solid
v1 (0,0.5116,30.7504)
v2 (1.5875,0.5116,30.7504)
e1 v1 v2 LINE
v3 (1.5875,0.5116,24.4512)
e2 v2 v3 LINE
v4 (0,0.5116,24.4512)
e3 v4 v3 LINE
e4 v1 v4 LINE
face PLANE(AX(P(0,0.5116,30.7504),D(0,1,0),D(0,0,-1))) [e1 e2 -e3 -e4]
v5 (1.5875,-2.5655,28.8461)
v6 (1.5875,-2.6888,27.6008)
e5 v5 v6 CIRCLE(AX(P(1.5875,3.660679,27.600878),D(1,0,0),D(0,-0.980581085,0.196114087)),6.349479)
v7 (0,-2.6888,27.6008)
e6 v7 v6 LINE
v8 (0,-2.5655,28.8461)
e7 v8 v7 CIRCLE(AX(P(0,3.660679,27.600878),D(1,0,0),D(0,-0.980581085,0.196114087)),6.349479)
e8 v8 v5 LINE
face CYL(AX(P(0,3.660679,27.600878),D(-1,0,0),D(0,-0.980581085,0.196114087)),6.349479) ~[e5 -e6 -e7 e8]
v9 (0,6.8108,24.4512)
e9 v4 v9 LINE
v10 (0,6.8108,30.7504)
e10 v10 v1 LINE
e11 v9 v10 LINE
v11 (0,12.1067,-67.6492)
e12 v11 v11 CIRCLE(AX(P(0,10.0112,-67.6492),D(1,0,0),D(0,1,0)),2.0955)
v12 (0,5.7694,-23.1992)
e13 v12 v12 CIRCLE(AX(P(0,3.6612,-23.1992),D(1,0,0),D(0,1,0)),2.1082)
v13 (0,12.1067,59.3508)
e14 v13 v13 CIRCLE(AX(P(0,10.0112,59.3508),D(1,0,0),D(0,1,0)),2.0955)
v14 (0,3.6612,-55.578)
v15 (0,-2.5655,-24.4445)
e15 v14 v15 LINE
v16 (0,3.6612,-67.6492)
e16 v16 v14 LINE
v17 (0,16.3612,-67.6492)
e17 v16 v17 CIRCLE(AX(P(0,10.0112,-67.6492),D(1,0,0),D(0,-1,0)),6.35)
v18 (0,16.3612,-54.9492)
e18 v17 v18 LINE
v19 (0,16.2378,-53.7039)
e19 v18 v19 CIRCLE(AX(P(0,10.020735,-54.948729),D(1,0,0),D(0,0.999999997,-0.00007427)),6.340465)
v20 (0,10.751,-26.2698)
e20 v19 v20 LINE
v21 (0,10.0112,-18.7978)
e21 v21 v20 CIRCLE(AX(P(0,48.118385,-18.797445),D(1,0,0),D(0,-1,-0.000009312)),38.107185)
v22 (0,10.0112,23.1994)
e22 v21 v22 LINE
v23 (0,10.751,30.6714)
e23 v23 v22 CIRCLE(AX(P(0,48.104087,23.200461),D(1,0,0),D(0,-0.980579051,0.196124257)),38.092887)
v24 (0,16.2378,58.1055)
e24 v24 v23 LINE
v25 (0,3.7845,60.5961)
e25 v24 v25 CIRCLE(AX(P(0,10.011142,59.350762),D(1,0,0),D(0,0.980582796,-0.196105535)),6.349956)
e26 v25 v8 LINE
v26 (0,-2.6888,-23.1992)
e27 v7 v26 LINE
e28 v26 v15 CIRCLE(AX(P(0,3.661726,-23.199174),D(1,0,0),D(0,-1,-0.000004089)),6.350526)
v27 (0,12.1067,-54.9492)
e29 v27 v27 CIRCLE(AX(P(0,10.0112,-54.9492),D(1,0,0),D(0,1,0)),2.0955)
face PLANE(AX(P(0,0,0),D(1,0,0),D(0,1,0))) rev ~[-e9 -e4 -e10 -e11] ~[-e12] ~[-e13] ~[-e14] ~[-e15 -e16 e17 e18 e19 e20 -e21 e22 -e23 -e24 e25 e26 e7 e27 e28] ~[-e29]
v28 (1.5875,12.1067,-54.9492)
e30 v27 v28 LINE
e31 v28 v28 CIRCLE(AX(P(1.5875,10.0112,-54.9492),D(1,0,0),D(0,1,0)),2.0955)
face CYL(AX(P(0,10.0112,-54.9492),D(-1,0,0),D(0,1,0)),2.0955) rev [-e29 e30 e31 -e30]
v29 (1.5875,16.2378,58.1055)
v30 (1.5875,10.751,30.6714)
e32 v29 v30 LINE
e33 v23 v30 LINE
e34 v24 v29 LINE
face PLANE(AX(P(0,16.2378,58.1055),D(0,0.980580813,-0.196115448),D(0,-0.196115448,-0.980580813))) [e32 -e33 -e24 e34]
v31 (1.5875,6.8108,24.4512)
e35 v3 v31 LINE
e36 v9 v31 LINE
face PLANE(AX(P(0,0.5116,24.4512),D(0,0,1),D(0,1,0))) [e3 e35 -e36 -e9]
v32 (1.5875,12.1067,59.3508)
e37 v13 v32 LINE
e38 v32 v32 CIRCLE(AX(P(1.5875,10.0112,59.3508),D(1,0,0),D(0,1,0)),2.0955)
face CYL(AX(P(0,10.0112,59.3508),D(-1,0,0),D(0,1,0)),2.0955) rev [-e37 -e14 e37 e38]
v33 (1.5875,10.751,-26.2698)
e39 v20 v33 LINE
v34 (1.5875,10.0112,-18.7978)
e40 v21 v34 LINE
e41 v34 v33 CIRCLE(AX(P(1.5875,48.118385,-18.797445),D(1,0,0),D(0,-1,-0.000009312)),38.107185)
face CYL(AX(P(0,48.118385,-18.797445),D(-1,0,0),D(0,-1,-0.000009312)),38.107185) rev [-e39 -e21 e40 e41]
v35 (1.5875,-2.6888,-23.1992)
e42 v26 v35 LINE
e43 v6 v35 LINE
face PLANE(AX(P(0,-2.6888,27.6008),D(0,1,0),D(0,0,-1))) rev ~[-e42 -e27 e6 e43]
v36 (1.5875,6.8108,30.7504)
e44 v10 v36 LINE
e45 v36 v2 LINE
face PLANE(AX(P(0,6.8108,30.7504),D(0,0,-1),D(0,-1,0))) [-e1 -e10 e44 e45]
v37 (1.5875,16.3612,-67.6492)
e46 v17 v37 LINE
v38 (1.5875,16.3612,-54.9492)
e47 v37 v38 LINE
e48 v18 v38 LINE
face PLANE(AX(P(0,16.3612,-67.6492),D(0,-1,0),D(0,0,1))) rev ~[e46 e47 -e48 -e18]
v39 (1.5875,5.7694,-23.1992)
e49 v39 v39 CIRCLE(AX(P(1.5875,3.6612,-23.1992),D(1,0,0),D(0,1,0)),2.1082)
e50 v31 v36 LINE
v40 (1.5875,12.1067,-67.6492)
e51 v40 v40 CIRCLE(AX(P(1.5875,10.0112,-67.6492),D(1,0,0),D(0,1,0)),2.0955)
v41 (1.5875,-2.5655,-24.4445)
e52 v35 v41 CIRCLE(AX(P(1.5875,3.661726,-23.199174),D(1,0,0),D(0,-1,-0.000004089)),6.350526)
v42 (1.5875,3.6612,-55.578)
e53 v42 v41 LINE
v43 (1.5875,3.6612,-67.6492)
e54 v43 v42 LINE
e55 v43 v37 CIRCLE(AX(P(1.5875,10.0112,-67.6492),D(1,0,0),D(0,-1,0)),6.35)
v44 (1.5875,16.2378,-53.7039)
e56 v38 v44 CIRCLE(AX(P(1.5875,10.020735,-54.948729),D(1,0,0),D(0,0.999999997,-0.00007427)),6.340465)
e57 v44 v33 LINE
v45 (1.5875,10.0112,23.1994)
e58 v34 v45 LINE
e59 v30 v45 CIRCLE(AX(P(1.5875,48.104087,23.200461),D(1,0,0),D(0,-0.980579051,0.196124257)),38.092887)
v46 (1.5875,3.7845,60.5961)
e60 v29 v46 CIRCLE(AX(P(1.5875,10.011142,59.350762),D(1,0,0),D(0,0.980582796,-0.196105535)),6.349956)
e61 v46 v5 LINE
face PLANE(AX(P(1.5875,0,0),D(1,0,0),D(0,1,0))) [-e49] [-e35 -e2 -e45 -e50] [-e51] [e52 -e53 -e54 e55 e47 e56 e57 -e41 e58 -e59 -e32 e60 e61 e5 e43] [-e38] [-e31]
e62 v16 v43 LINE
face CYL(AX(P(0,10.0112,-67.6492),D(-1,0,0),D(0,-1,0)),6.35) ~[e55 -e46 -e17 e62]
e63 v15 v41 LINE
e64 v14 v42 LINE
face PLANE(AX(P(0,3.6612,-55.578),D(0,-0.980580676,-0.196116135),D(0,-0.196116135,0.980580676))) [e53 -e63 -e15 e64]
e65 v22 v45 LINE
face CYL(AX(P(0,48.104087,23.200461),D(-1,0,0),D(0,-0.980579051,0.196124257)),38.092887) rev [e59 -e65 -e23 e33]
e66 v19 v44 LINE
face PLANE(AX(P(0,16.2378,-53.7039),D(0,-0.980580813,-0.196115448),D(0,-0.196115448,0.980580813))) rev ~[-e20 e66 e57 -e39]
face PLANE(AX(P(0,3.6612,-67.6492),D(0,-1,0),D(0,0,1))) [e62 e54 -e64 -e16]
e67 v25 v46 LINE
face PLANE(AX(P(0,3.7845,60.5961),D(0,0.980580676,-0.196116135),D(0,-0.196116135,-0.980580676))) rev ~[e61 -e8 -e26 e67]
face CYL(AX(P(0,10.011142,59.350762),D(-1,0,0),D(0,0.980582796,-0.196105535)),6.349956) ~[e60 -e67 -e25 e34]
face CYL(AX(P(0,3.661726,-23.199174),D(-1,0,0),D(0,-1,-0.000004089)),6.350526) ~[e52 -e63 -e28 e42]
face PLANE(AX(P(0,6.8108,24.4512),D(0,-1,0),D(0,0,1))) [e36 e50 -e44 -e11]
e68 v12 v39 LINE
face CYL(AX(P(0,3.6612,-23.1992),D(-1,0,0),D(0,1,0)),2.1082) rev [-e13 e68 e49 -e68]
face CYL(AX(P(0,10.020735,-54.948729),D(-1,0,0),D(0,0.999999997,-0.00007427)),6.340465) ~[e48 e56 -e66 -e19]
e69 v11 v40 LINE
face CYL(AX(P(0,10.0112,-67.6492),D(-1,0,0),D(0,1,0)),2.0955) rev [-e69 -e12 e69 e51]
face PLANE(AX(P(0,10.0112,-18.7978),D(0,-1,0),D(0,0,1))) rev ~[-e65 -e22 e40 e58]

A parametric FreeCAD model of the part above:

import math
import FreeCAD as App
import Part
import Sketcher
from FreeCAD import Vector
Q = App.Units.Quantity


def add_polygon(sketch, points):
    """Adds a closed chain of lines whose ends are joined by coincident constraints."""
    first, n = sketch.GeometryCount, len(points)
    for a, b in zip(points, points[1:] + points[:1]):
        sketch.addGeometry(Part.LineSegment(App.Vector(*a, 0), App.Vector(*b, 0)), False)
    for i in range(n):
        sketch.addConstraint(Sketcher.Constraint("Coincident", first + i, 2, first + (i + 1) % n, 1))

doc = App.newDocument("Part")
body = doc.addObject("PartDesign::Body", "Body")

# Sketch on YZ plane
sketch1 = body.newObject("Sketcher::SketchObject", "Sketch")
sketch1.AttachmentSupport = (doc.getObject("YZ_Plane"), [""])
sketch1.MapMode = "FlatFace"
sketch1.addGeometry(Part.LineSegment(Vector(3.7845, 60.5961, 0), Vector(-2.5655, 28.8461, 0)), False)  # 0
sketch1.addGeometry(Part.ArcOfCircle(Part.Circle(Vector(3.6612, 27.6008, 0), Vector(0, 0, 1), 6.350005), math.radians(168.690421), math.radians(180)), False)  # 1
sketch1.addGeometry(Part.LineSegment(Vector(-2.6888, 27.6008, 0), Vector(-2.6888, -23.1992, 0)), False)  # 2
sketch1.addGeometry(Part.ArcOfCircle(Part.Circle(Vector(3.6612, -23.1992, 0), Vector(0, 0, 1), 6.35), math.radians(180), math.radians(191.309579)), False)  # 3
sketch1.addGeometry(Part.LineSegment(Vector(-2.5655, -24.4445, 0), Vector(3.6612, -55.578, 0)), False)  # 4
sketch1.addGeometry(Part.LineSegment(Vector(3.6612, -55.578, 0), Vector(3.6612, -67.6492, 0)), False)  # 5
sketch1.addGeometry(Part.ArcOfCircle(Part.Circle(Vector(10.0112, -67.6492, 0), Vector(0, 0, 1), 6.35), math.radians(180), math.radians(360)), False)  # 6
sketch1.addGeometry(Part.LineSegment(Vector(16.3612, -67.6492, 0), Vector(16.3612, -54.9492, 0)), False)  # 7
sketch1.addGeometry(Part.ArcOfCircle(Part.Circle(Vector(10.020735, -54.948729, 0), Vector(0, 0, 1), 6.340465), math.radians(-0.004255), math.radians(11.32248)), False)  # 8
sketch1.addGeometry(Part.LineSegment(Vector(16.2378, -53.7039, 0), Vector(10.751, -26.2698, 0)), False)  # 9
sketch1.addGeometry(Part.ArcOfCircle(Part.Circle(Vector(48.118385, -18.797445, 0), Vector(0, 0, 1), 38.107185), math.radians(-179.999466), math.radians(-168.691722)), False)  # 10
sketch1.addGeometry(Part.LineSegment(Vector(10.0112, -18.7978, 0), Vector(10.0112, 23.1994, 0)), False)  # 11
sketch1.addGeometry(Part.ArcOfCircle(Part.Circle(Vector(48.104087, 23.200461, 0), Vector(0, 0, 1), 38.092887), math.radians(168.689593), math.radians(180.001595)), False)  # 12
sketch1.addGeometry(Part.LineSegment(Vector(10.751, 30.6714, 0), Vector(16.2378, 58.1055, 0)), False)  # 13
sketch1.addGeometry(Part.ArcOfCircle(Part.Circle(Vector(10.0112, 59.3508, 0), Vector(0, 0, 1), 6.349907), math.radians(-11.309756), math.radians(168.690421)), False)  # 14
sketch1.addGeometry(Part.Circle(Vector(3.6612, -23.1992, 0), Vector(0, 0, 1), 2.1082), False)  # 15
sketch1.addGeometry(Part.Circle(Vector(10.0112, -67.6492, 0), Vector(0, 0, 1), 2.0955), False)  # 16
sketch1.addGeometry(Part.Circle(Vector(10.0112, -54.9492, 0), Vector(0, 0, 1), 2.0955), False)  # 17
add_polygon(sketch1, [(0.5116, 30.7504), (6.8108, 30.7504), (6.8108, 24.4512), (0.5116, 24.4512)])  # lines 18-21
sketch1.addGeometry(Part.Circle(Vector(10.0112, 59.3508, 0), Vector(0, 0, 1), 2.0955), False)  # 22
sketch1.addConstraint([
    Sketcher.Constraint("Coincident", 0, 2, 1, 1),
    Sketcher.Constraint("Coincident", 1, 2, 2, 1),
    Sketcher.Constraint("Coincident", 2, 2, 3, 1),
    Sketcher.Constraint("Coincident", 3, 2, 4, 1),
    Sketcher.Constraint("Coincident", 4, 2, 5, 1),
    Sketcher.Constraint("Coincident", 5, 2, 6, 1),
    Sketcher.Constraint("Coincident", 6, 2, 7, 1),
    Sketcher.Constraint("Coincident", 7, 2, 8, 1),
    Sketcher.Constraint("Coincident", 8, 2, 9, 1),
    Sketcher.Constraint("Coincident", 9, 2, 10, 2),
    Sketcher.Constraint("Coincident", 10, 1, 11, 1),
    Sketcher.Constraint("Coincident", 11, 2, 12, 2),
    Sketcher.Constraint("Coincident", 12, 1, 13, 1),
    Sketcher.Constraint("Coincident", 13, 2, 14, 1),
    Sketcher.Constraint("Coincident", 14, 2, 0, 1),
    Sketcher.Constraint("Vertical", 2),
    Sketcher.Constraint("Vertical", 5),
    Sketcher.Constraint("Vertical", 7),
    Sketcher.Constraint("Vertical", 11),
    Sketcher.Constraint("Horizontal", 18),
    Sketcher.Constraint("Vertical", 19),
    Sketcher.Constraint("Horizontal", 20),
    Sketcher.Constraint("Vertical", 21),
    Sketcher.Constraint("Coincident", 15, 3, 3, 3),
    Sketcher.Constraint("Coincident", 16, 3, 6, 3),
    Sketcher.Constraint("Coincident", 22, 3, 14, 3),
    Sketcher.Constraint("Radius", 1, Q("0.25 in")),
    Sketcher.Constraint("Radius", 3, Q("0.25 in")),
    Sketcher.Constraint("Radius", 6, Q("0.25 in")),
    Sketcher.Constraint("Radius", 14, Q("0.25 in")),
    Sketcher.Constraint("Diameter", 15, Q("0.166 in")),
    Sketcher.Constraint("Diameter", 16, Q("0.165 in")),
    Sketcher.Constraint("Diameter", 17, Q("0.165 in")),
    Sketcher.Constraint("Diameter", 22, Q("0.165 in")),
    Sketcher.Constraint("DistanceY", 7, 1, 7, 2, Q("0.5 in")),
    Sketcher.Constraint("DistanceY", 6, 3, 17, 3, Q("0.5 in")),
    Sketcher.Constraint("DistanceX", 1, 2, 14, 3, Q("0.5 in")),
    Sketcher.Constraint("DistanceX", 2, 2, 17, 3, Q("0.5 in")),
    Sketcher.Constraint("DistanceX", 2, 2, 6, 3, Q("0.5 in")),
    Sketcher.Constraint("DistanceY", 5, 2, 17, 3, Q("0.5 in")),
    Sketcher.Constraint("DistanceY", 6, 2, 17, 3, Q("0.5 in")),
    Sketcher.Constraint("DistanceX", 2, 2, 10, 1, Q("0.5 in")),
    Sketcher.Constraint("Distance", 4, Q("1.25 in")),
    Sketcher.Constraint("DistanceX", 18, 1, 18, 2, Q("0.248 in")),
    Sketcher.Constraint("DistanceY", 2, 2, 2, 1, Q("2 in")),
    Sketcher.Constraint("DistanceY", 19, 2, 19, 1, Q("0.248 in")),
    Sketcher.Constraint("DistanceY", 1, 3, 14, 3, Q("1.25 in")),
    Sketcher.Constraint("DistanceY", 17, 3, 3, 3, Q("1.25 in")),
    Sketcher.Constraint("DistanceY", 1, 2, 14, 3, Q("1.25 in")),
    Sketcher.Constraint("DistanceY", 17, 3, 2, 2, Q("1.25 in")),
    Sketcher.Constraint("DistanceX", 0, 2, 14, 2, Q("0.25 in")),
    Sketcher.Constraint("Radius", 8, Q("6.3405 mm")),
    Sketcher.Constraint("Radius", 10, Q("38.1072 mm")),
    Sketcher.Constraint("Radius", 12, Q("38.093 mm")),
    Sketcher.Constraint("DistanceY", 6, 3, 8, 3, Q("12.7005 mm")),
    Sketcher.Constraint("DistanceX", 0, 2, -1, 1, Q("0.101 in")),
    Sketcher.Constraint("DistanceX", 3, 2, -1, 1, Q("0.101 in")),
    Sketcher.Constraint("DistanceY", 8, 3, 8, 2, Q("0.049 in")),
    Sketcher.Constraint("DistanceX", 1, 3, 18, 2, Q("0.124 in")),
    Sketcher.Constraint("DistanceY", 1, 3, 18, 2, Q("0.124 in")),
    Sketcher.Constraint("DistanceY", 5, 2, 5, 1, Q("12.0712 mm")),
    Sketcher.Constraint("DistanceY", 11, 1, 11, 2, Q("41.9972 mm")),
    Sketcher.Constraint("DistanceY", -1, 1, 12, 3, Q("0.9134 in")),
    Sketcher.Constraint("DistanceY", 4, 2, -1, 1, Q("2.1881 in")),
    Sketcher.Constraint("DistanceY", 3, 3, 10, 3, Q("0.1733 in")),
    Sketcher.Constraint("DistanceY", 9, 2, 3, 3, Q("0.1209 in")),
    Sketcher.Constraint("DistanceY", 3, 2, 10, 1, Q("0.2223 in")),
    Sketcher.Constraint("DistanceY", 1, 3, 12, 1, Q("0.1209 in")),
    Sketcher.Constraint("Distance", 13, Q("27.9774 mm")),
])
pad1 = body.newObject("PartDesign::Pad", "Pad")
pad1.Profile = sketch1
pad1.Length = Q("0.0625 in")

doc.recompute()
